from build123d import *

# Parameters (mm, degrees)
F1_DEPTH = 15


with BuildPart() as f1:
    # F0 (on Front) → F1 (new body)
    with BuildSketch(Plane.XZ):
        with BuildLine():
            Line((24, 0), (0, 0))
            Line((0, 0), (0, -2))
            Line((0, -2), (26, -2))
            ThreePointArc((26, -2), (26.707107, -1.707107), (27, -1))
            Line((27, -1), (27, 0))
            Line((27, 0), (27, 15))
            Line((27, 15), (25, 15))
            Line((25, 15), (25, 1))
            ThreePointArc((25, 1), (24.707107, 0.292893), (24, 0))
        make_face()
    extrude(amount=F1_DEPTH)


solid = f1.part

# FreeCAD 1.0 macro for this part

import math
import FreeCAD as App
import Part
import Sketcher

V = App.Vector

doc = App.newDocument("Part")
body = doc.addObject("PartDesign::Body", "Body")

# Sketch on XZ plane
sketch1 = body.newObject("Sketcher::SketchObject", "Sketch")
sketch1.AttachmentSupport = (doc.getObject("XZ_Plane"), [""])
sketch1.MapMode = "FlatFace"
sketch1.addGeometry([
    Part.LineSegment(V(24, 0, 0), V(0, 0, 0)),  # 0
    Part.LineSegment(V(0, 0, 0), V(0, -2, 0)),  # 1
    Part.LineSegment(V(0, -2, 0), V(26, -2, 0)),  # 2
    Part.ArcOfCircle(Part.Circle(V(26, -1, 0), V(0, 0, 1), 1), math.radians(-90), math.radians(0)),  # 3
    Part.LineSegment(V(27, -1, 0), V(27, 15, 0)),  # 4
    Part.LineSegment(V(27, 15, 0), V(25, 15, 0)),  # 5
    Part.LineSegment(V(25, 15, 0), V(25, 1, 0)),  # 6
    Part.ArcOfCircle(Part.Circle(V(24, 1, 0), V(0, 0, 1), 1), math.radians(-90), math.radians(0)),  # 7
], False)
sketch1.addConstraint([
    Sketcher.Constraint("Coincident", 0, 2, 1, 1),
    Sketcher.Constraint("Coincident", 1, 2, 2, 1),
    Sketcher.Constraint("Tangent", 2, 2, 3, 1),
    Sketcher.Constraint("Tangent", 3, 2, 4, 1),
    Sketcher.Constraint("Coincident", 4, 2, 5, 1),
    Sketcher.Constraint("Coincident", 5, 2, 6, 1),
    Sketcher.Constraint("Tangent", 6, 2, 7, 2),
    Sketcher.Constraint("Tangent", 7, 1, 0, 1),
    Sketcher.Constraint("Horizontal", 0),
    Sketcher.Constraint("Vertical", 1),
    Sketcher.Constraint("Horizontal", 2),
    Sketcher.Constraint("Vertical", 4),
    Sketcher.Constraint("Horizontal", 5),
    Sketcher.Constraint("Vertical", 6),
    Sketcher.Constraint("Coincident", 0, 2, -1, 1),
    Sketcher.Constraint("Equal", 3, 7),
    Sketcher.Constraint("Equal", 5, 1),
    Sketcher.Constraint("Radius", 3, 0.999999),
    Sketcher.Constraint("DistanceX", 0, 2, 0, 1, 24.0),
    Sketcher.Constraint("DistanceX", 2, 1, 2, 2, 26.0),
    Sketcher.Constraint("DistanceY", 4, 1, 4, 2, 16.0),
])
pad1 = body.newObject("PartDesign::Pad", "Pad")
pad1.Profile = sketch1
pad1.Length = 15

doc.recompute()
